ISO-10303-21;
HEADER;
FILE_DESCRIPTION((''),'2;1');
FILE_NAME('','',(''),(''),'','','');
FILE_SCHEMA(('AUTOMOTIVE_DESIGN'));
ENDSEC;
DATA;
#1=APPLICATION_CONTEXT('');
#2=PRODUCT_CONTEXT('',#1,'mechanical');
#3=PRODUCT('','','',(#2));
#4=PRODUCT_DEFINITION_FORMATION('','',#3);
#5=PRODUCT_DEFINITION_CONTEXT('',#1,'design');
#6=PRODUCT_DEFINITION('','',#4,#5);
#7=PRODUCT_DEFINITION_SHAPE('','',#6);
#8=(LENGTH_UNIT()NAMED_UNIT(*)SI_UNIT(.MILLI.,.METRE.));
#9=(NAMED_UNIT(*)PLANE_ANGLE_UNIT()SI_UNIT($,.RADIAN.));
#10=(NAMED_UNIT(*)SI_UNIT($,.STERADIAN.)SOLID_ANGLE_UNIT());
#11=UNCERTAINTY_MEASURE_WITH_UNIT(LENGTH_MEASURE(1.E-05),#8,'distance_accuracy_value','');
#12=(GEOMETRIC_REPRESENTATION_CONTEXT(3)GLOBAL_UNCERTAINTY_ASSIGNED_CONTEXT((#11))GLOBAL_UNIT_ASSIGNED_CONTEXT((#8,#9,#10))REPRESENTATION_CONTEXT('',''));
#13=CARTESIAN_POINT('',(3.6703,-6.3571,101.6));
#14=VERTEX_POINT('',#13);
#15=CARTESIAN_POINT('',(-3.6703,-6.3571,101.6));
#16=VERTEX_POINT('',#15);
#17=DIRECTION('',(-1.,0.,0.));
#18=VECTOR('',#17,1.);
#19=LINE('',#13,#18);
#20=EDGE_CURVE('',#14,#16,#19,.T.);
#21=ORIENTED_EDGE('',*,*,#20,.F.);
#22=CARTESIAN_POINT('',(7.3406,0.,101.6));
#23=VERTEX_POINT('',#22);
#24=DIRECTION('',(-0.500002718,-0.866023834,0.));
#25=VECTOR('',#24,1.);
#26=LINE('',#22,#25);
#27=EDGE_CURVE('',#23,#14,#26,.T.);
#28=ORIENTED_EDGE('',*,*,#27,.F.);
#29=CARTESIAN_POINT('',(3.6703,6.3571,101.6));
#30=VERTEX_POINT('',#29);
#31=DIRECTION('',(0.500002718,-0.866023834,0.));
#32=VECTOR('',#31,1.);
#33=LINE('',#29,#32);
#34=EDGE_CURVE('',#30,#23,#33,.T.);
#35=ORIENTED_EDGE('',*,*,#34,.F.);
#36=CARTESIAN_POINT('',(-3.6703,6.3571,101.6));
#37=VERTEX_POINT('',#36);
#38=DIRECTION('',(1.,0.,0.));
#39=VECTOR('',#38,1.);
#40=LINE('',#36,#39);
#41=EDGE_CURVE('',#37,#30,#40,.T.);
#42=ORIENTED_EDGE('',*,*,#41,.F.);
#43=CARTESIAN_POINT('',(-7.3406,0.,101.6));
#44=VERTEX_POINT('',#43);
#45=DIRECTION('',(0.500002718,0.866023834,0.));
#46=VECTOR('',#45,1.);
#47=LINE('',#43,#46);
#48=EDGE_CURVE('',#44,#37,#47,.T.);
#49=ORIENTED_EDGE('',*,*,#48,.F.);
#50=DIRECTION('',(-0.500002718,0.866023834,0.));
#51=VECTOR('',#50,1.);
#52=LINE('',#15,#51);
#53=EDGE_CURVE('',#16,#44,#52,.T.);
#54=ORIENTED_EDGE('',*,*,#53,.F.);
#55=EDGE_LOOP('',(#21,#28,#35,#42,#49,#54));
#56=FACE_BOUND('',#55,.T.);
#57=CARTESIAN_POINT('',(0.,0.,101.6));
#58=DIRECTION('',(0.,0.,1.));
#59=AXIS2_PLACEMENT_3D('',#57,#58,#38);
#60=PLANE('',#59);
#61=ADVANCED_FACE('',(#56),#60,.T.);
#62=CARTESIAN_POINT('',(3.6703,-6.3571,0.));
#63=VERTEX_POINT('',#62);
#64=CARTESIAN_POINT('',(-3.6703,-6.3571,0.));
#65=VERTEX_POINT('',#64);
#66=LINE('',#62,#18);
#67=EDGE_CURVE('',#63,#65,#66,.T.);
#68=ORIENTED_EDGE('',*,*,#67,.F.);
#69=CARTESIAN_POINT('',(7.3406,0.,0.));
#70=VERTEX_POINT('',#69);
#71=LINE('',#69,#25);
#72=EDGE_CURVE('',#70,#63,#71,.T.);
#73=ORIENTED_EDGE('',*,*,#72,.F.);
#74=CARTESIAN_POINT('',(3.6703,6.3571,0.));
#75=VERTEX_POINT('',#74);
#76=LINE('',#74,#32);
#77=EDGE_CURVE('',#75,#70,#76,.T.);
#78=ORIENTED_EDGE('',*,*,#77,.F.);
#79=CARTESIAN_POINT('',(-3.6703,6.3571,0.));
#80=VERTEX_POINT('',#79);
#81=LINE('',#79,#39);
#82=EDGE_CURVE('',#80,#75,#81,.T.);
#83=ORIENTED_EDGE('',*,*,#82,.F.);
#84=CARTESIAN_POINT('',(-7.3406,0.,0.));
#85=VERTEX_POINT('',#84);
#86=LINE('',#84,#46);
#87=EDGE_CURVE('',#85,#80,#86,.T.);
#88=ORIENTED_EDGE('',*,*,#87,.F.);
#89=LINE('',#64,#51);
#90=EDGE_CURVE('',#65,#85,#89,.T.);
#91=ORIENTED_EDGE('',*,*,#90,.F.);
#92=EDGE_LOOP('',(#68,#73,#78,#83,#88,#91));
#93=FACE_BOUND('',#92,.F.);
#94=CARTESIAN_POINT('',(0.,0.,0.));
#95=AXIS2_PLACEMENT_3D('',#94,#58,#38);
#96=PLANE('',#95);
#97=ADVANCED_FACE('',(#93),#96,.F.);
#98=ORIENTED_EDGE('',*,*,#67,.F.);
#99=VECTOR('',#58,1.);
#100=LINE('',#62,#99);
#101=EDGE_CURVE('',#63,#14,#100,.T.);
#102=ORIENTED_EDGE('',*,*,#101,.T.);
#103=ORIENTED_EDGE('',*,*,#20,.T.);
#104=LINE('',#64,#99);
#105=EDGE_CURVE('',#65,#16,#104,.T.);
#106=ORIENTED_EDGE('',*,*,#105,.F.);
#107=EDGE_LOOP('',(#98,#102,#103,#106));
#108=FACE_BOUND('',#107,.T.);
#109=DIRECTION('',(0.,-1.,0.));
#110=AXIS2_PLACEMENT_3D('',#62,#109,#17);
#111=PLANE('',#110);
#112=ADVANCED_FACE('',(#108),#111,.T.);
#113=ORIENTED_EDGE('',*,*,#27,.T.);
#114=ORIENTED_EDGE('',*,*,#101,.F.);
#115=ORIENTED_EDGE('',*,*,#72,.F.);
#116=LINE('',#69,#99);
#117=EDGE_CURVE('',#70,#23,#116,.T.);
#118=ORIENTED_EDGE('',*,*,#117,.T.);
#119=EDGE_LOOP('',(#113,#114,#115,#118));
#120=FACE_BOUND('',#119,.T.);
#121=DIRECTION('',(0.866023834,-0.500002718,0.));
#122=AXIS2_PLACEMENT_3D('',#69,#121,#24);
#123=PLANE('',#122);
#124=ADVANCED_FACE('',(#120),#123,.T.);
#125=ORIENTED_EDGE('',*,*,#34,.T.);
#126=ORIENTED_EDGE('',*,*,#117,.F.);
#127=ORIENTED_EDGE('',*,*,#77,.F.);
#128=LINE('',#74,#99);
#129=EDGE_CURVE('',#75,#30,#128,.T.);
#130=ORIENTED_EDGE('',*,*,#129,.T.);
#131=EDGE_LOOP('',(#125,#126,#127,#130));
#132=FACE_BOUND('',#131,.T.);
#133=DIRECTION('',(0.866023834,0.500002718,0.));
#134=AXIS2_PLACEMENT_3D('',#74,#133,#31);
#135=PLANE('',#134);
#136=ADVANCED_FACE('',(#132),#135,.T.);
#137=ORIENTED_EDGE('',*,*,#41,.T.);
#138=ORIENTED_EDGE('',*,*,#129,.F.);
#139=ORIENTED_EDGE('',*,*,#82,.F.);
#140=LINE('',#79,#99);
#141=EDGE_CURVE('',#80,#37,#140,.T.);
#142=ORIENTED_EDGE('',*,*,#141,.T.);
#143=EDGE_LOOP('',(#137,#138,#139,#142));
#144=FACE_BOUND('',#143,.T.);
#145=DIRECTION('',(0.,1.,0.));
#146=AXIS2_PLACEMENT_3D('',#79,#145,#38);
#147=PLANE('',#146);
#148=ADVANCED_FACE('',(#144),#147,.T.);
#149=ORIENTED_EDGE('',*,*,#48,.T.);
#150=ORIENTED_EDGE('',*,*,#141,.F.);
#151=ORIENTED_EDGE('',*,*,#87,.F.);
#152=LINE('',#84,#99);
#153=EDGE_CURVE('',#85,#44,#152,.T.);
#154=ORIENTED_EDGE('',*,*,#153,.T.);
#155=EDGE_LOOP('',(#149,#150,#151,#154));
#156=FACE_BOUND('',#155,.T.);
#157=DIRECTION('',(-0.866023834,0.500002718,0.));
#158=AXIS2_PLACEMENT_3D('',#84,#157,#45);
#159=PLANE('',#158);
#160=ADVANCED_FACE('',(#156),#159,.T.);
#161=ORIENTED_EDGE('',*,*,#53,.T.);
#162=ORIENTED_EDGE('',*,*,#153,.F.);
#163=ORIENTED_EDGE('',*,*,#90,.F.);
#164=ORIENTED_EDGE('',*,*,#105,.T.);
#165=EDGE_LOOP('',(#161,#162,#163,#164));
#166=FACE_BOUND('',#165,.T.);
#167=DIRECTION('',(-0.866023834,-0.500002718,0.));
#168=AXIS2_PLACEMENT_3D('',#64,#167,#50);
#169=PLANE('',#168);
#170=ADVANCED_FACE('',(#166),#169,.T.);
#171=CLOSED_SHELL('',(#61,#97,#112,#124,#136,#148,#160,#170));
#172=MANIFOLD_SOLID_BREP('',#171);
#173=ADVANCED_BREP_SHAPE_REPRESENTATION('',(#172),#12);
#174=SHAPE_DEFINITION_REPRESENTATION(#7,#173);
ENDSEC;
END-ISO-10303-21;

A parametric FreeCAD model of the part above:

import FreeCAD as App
import Part
import Sketcher
from FreeCAD import Vector
Q = App.Units.Quantity

doc = App.newDocument("Part")
params = doc.addObject("Spreadsheet::Sheet", "Params")
for row, (alias, value) in enumerate([
    ("sketch1_width", "0.289 in"),
    ("pad1_length", "4 in"),
], start=1):
    params.set(f"A{row}", alias)
    params.set(f"B{row}", "=" + value)
    params.setAlias(f"B{row}", alias)

body = doc.addObject("PartDesign::Body", "Body")

# Sketch on XY plane
sketch1 = body.newObject("Sketcher::SketchObject", "Sketch")
sketch1.AttachmentSupport = (doc.getObject("XY_Plane"), [""])
sketch1.MapMode = "FlatFace"
sketch1.addGeometry([
    Part.LineSegment(Vector(4, -6, 0), Vector(7, 0, 0)),  # 0
    Part.LineSegment(Vector(7, 0, 0), Vector(4, 6, 0)),  # 1
    Part.LineSegment(Vector(4, 6, 0), Vector(-4, 6, 0)),  # 2
    Part.LineSegment(Vector(-4, 6, 0), Vector(-7, 0, 0)),  # 3
    Part.LineSegment(Vector(-7, 0, 0), Vector(-4, -6, 0)),  # 4
    Part.LineSegment(Vector(-4, -6, 0), Vector(4, -6, 0)),  # 5
], False)
sketch1.addConstraint([
    Sketcher.Constraint("Coincident", 0, 2, 1, 1),
    Sketcher.Constraint("Coincident", 1, 2, 2, 1),
    Sketcher.Constraint("Coincident", 2, 2, 3, 1),
    Sketcher.Constraint("Coincident", 3, 2, 4, 1),
    Sketcher.Constraint("Coincident", 4, 2, 5, 1),
    Sketcher.Constraint("Coincident", 5, 2, 0, 1),
    Sketcher.Constraint("Horizontal", 2),
    Sketcher.Constraint("Horizontal", 5),
    Sketcher.Constraint("Symmetric", 0, 2, 3, 2, -1, 1),
    Sketcher.Constraint("Symmetric", 1, 2, 4, 2, -1, 1),
    Sketcher.Constraint("PointOnObject", 0, 2, -1),
    Sketcher.Constraint("Parallel", 0, 3),
    Sketcher.Constraint("Vertical", 2, 2, 4, 2),
    Sketcher.Constraint("Angle", 0, Q("59.9998 deg")),
    Sketcher.Constraint("DistanceX", 3, 2, 0, 2, Q("0.578 in")),
    Sketcher.Constraint("DistanceX", 2, 2, 2, 1, Q("0.289 in")),
])
sketch1.setExpression("Constraints[15]", "Params.sketch1_width")
pad1 = body.newObject("PartDesign::Pad", "Pad")
pad1.Profile = sketch1
pad1.setExpression("Length", "Params.pad1_length")

doc.recompute()
